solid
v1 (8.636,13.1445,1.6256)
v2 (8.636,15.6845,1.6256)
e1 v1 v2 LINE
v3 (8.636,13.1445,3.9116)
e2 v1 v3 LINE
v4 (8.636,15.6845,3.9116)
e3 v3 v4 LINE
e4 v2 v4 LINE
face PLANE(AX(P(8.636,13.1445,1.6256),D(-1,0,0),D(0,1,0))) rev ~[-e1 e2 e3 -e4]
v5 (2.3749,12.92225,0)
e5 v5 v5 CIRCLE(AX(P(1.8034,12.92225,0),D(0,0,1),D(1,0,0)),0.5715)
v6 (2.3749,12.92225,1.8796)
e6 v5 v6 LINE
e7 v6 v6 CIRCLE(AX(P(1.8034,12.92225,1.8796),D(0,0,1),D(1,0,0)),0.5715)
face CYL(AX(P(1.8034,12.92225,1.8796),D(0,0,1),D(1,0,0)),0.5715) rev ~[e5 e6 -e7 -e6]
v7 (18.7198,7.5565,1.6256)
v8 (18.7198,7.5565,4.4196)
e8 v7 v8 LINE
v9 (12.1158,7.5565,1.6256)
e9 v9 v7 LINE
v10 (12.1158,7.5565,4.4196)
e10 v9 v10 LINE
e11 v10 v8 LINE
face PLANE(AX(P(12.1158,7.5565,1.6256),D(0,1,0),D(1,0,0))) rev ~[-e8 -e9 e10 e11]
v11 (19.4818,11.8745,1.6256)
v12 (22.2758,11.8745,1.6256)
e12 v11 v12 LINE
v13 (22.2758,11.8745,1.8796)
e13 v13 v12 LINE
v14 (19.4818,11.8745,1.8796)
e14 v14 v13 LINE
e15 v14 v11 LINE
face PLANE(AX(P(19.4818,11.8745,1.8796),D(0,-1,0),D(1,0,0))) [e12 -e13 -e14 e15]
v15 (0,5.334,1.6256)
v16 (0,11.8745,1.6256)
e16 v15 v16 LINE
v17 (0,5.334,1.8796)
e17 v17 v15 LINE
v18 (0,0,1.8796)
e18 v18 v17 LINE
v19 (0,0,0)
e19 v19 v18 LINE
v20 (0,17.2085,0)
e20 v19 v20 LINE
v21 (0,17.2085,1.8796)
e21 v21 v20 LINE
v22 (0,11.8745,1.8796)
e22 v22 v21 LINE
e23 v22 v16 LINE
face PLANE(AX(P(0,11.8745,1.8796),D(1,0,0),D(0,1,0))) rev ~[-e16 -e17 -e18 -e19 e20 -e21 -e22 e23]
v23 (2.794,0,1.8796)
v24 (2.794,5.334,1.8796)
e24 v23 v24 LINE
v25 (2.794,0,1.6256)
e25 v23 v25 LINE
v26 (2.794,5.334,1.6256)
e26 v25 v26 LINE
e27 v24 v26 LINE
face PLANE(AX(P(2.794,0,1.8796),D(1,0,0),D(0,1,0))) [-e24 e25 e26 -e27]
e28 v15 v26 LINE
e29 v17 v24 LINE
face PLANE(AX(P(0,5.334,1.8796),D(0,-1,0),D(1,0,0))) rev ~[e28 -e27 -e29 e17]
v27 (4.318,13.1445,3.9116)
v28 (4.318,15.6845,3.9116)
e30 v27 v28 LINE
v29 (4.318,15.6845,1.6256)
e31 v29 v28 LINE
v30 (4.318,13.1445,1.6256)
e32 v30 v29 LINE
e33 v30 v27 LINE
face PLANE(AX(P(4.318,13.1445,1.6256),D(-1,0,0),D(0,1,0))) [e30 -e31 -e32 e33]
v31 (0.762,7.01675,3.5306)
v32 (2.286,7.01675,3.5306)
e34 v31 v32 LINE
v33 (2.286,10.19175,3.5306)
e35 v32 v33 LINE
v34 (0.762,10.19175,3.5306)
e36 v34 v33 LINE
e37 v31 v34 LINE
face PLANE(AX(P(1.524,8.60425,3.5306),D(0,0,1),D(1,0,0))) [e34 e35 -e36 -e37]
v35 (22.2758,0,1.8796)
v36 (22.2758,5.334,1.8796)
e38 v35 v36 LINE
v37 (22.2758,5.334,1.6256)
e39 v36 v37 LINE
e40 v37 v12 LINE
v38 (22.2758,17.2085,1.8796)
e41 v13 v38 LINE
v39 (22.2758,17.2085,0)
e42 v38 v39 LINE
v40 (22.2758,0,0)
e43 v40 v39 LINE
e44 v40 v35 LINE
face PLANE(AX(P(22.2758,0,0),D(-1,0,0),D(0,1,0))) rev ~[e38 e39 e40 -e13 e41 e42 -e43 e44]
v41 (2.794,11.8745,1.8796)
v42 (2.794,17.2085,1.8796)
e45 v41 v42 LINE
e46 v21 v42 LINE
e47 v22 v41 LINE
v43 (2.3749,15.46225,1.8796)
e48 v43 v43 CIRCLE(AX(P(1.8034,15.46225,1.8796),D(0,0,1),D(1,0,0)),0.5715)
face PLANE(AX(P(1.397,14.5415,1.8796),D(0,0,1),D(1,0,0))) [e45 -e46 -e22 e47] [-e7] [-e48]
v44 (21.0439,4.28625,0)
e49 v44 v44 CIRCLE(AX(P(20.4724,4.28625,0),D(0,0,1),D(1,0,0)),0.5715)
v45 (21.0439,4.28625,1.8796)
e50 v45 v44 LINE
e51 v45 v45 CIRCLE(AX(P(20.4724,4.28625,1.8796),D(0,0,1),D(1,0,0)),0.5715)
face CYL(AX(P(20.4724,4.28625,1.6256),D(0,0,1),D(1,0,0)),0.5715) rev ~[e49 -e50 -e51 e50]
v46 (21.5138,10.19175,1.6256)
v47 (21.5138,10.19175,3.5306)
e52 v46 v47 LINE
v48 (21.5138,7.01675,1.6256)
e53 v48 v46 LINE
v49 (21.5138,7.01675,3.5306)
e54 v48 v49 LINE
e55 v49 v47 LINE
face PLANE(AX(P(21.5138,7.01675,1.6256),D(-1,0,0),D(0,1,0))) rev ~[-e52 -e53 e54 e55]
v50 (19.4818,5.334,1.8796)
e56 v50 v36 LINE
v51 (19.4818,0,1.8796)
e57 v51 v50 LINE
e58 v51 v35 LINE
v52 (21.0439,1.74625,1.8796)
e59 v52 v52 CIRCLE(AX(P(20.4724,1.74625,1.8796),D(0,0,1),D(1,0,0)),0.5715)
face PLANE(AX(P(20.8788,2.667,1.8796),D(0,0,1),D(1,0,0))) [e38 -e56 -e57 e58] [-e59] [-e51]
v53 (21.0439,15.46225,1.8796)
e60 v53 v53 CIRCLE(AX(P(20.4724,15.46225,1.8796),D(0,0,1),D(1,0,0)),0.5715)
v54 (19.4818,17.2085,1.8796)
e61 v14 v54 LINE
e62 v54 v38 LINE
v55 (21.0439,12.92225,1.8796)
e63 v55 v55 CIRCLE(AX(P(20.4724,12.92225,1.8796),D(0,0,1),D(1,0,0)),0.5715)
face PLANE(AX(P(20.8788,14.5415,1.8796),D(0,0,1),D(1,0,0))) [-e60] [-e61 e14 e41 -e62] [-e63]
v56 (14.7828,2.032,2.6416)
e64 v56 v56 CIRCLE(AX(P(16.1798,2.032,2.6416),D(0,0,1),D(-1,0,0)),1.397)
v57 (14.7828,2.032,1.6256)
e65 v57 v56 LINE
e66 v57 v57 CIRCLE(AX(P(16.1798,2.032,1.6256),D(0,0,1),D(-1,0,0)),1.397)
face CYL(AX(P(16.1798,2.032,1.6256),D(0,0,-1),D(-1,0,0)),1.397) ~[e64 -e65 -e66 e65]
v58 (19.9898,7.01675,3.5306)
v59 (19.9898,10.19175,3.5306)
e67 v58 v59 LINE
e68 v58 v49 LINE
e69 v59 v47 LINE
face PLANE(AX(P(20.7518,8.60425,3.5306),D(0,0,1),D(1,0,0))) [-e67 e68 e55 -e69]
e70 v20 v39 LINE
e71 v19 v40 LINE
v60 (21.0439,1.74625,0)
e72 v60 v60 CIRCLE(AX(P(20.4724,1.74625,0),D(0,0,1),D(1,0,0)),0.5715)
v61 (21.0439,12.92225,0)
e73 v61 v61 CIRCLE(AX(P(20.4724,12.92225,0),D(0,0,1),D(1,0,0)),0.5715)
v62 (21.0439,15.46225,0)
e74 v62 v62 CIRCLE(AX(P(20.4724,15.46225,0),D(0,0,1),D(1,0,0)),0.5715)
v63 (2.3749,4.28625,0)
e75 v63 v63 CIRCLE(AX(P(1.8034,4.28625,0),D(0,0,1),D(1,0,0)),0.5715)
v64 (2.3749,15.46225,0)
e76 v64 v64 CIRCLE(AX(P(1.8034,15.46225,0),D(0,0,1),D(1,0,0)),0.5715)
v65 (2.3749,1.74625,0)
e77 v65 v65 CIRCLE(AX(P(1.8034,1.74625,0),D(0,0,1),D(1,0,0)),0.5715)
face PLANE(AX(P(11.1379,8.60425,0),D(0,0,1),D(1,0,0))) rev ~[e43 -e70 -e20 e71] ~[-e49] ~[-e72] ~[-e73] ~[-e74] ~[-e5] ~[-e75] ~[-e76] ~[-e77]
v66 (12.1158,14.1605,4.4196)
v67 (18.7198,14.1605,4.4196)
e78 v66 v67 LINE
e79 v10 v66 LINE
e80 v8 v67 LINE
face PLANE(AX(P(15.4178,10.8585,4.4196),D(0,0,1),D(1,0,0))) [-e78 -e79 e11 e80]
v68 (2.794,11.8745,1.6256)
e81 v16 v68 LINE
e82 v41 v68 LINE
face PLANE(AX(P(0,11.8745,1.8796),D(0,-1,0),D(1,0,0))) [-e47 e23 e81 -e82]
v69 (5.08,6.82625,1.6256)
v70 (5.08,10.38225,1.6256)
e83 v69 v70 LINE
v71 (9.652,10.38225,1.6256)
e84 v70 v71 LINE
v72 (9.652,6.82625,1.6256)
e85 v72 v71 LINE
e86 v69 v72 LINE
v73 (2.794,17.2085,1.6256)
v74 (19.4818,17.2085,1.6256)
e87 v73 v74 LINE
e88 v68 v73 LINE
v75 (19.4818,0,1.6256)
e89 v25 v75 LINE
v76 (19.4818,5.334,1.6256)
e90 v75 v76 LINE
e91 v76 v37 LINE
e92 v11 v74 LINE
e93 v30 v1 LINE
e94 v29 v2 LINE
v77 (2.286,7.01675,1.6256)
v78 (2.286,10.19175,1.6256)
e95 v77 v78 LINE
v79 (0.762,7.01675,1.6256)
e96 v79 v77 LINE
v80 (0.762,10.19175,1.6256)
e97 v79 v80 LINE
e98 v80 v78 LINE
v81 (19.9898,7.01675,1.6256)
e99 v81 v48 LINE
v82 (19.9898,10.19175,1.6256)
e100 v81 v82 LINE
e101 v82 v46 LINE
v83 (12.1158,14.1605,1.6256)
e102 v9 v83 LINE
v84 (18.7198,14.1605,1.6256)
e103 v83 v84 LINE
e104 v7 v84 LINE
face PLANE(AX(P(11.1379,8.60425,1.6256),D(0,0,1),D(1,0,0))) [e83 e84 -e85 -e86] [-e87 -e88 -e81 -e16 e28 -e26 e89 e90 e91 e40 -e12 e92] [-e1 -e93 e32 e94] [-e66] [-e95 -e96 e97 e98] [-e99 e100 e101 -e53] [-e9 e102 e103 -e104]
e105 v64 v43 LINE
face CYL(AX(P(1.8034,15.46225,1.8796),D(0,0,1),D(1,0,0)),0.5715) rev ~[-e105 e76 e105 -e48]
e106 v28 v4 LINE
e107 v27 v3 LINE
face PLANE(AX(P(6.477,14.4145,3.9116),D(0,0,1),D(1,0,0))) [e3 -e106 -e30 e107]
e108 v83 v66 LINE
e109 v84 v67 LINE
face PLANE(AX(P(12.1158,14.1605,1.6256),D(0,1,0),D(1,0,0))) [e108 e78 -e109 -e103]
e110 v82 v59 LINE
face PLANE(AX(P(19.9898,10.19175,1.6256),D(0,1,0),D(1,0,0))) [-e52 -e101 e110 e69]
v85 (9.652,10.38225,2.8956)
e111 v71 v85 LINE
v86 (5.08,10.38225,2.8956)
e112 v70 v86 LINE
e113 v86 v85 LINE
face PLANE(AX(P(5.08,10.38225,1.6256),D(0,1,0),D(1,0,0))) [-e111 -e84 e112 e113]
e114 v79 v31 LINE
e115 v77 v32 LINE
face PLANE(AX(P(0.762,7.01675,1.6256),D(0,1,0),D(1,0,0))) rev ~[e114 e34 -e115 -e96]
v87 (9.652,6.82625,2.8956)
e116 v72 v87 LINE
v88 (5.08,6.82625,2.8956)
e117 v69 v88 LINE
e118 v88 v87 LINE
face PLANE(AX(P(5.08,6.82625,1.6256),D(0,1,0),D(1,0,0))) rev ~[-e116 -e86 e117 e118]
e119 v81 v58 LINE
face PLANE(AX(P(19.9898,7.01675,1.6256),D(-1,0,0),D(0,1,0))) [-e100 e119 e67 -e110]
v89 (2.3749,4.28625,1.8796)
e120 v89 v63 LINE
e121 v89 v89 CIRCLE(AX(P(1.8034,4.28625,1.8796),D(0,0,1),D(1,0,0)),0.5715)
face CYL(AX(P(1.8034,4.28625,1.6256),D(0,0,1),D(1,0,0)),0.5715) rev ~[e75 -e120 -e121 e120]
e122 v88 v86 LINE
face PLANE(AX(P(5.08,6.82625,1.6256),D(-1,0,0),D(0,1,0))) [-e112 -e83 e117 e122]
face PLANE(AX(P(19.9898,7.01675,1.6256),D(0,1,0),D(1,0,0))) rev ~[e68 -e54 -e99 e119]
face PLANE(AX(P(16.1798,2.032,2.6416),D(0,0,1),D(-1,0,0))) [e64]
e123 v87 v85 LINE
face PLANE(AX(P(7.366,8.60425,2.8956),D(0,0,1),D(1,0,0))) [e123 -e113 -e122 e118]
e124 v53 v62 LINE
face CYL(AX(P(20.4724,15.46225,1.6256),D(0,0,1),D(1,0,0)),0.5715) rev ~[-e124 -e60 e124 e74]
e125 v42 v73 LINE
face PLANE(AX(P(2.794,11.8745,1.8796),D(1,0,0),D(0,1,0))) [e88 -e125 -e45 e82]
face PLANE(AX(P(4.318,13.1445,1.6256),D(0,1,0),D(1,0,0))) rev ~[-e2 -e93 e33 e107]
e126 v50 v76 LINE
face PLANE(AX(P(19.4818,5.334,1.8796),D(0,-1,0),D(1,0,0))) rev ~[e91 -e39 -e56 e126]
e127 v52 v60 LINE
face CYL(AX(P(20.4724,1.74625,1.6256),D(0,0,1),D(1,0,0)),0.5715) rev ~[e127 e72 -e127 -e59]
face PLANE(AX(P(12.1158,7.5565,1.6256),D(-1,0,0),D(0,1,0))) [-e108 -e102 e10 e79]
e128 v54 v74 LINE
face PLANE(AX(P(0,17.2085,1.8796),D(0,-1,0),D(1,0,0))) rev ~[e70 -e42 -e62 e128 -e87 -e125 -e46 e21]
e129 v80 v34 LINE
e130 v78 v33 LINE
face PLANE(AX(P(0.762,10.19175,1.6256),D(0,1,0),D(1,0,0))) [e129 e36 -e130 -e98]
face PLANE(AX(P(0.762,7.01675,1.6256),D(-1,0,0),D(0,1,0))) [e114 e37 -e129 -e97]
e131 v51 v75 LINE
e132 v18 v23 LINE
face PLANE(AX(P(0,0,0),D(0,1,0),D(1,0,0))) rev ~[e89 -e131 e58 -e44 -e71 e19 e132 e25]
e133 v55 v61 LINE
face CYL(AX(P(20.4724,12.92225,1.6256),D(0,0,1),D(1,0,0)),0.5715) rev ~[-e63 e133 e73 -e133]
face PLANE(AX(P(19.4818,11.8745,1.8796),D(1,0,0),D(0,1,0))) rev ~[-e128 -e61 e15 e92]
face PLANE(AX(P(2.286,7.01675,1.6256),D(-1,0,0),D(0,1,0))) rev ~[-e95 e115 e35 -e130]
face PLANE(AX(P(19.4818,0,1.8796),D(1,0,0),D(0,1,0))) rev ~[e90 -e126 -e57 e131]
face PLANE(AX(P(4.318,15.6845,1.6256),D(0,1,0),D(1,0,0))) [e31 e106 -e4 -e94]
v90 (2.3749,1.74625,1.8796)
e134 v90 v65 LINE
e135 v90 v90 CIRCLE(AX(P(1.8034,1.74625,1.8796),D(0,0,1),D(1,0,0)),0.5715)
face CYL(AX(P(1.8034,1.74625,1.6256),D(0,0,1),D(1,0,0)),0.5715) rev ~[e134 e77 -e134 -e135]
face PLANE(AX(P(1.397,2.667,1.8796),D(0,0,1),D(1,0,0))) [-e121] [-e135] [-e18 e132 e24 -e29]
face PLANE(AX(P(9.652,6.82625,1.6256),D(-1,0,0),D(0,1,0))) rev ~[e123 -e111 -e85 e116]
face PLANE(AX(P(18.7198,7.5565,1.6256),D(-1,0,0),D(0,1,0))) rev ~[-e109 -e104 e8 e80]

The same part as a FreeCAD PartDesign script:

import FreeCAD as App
import Part
import Sketcher
from FreeCAD import Vector
Q = App.Units.Quantity


def add_polygon(sketch, points):
    """Adds a closed chain of lines whose ends are joined by coincident constraints."""
    first, n = sketch.GeometryCount, len(points)
    for a, b in zip(points, points[1:] + points[:1]):
        sketch.addGeometry(Part.LineSegment(App.Vector(*a, 0), App.Vector(*b, 0)), False)
    for i in range(n):
        sketch.addConstraint(Sketcher.Constraint("Coincident", first + i, 2, first + (i + 1) % n, 1))

doc = App.newDocument("Part")
body = doc.addObject("PartDesign::Body", "Body")

sketch1 = body.newObject("Sketcher::SketchObject", "Sketch")
sketch1.AttachmentSupport = (doc.getObject("XY_Plane"), [""])
sketch1.MapMode = "FlatFace"
add_polygon(sketch1, [(0, 17), (0, 0), (22, 0), (22, 17)])
sketch1.addConstraint([
    Sketcher.Constraint("Vertical", 0),
    Sketcher.Constraint("Horizontal", 1),
    Sketcher.Constraint("Vertical", 2),
    Sketcher.Constraint("Horizontal", 3),
    Sketcher.Constraint("Coincident", 0, 2, -1, 1),
    Sketcher.Constraint("DistanceX", 1, 1, 1, 2, Q("0.877 in")),
    Sketcher.Constraint("DistanceY", 0, 2, 0, 1, Q("0.6775 in")),
])
pad1 = body.newObject("PartDesign::Pad", "Pad")
pad1.Profile = sketch1
pad1.Length = Q("0.064 in")

sketch2 = body.newObject("Sketcher::SketchObject", "Sketch001")
sketch2.AttachmentSupport = (doc.getObject("XY_Plane"), [""])
sketch2.MapMode = "FlatFace"
sketch2.AttachmentOffset = App.Placement(Vector(0, 0, 0.064 * 25.4), App.Rotation())
sketch2.addGeometry([
    Part.Circle(Vector(1.8, 15.5, 0), Vector(0, 0, 1), 0.6),
    Part.Circle(Vector(1.8, 12.9, 0), Vector(0, 0, 1), 0.6),
    Part.Circle(Vector(20.5, 15.5, 0), Vector(0, 0, 1), 0.6),
    Part.Circle(Vector(20.5, 12.9, 0), Vector(0, 0, 1), 0.6),
    Part.Circle(Vector(20.5, 4.3, 0), Vector(0, 0, 1), 0.6),
    Part.Circle(Vector(20.5, 1.7, 0), Vector(0, 0, 1), 0.6),
    Part.Circle(Vector(1.8, 4.3, 0), Vector(0, 0, 1), 0.6),
    Part.Circle(Vector(1.8, 1.7, 0), Vector(0, 0, 1), 0.6),
], False)
sketch2.addConstraint([
    Sketcher.Constraint("Equal", 0, 1),
    Sketcher.Constraint("Equal", 1, 2),
    Sketcher.Constraint("Equal", 2, 3),
    Sketcher.Constraint("Equal", 3, 4),
    Sketcher.Constraint("Equal", 4, 5),
    Sketcher.Constraint("Equal", 5, 6),
    Sketcher.Constraint("Equal", 6, 7),
    Sketcher.Constraint("Horizontal", 0, 3, 2, 3),
    Sketcher.Constraint("Horizontal", 1, 3, 3, 3),
    Sketcher.Constraint("Horizontal", 4, 3, 6, 3),
    Sketcher.Constraint("Horizontal", 5, 3, 7, 3),
    Sketcher.Constraint("Vertical", 0, 3, 1, 3),
    Sketcher.Constraint("Vertical", 2, 3, 3, 3),
    Sketcher.Constraint("Vertical", 3, 3, 4, 3),
    Sketcher.Constraint("Vertical", 4, 3, 5, 3),
    Sketcher.Constraint("Vertical", 1, 3, 6, 3),
    Sketcher.Constraint("Vertical", 6, 3, 7, 3),
    Sketcher.Constraint("Diameter", 0, Q("0.045 in")),
    Sketcher.Constraint("DistanceY", 1, 3, 0, 3, Q("0.1 in")),
    Sketcher.Constraint("DistanceY", 5, 3, 4, 3, Q("0.1 in")),
    Sketcher.Constraint("DistanceY", 4, 3, 3, 3, Q("0.34 in")),
    Sketcher.Constraint("DistanceX", -1, 1, 0, 3, Q("0.071 in")),
    Sketcher.Constraint("DistanceX", -1, 1, 2, 3, Q("0.806 in")),
    Sketcher.Constraint("DistanceY", -1, 1, 0, 3, Q("15.46225 mm")),
])
pocket1 = body.newObject("PartDesign::Pocket", "Pocket")
pocket1.Profile = sketch2
pocket1.Type = "ThroughAll"

sketch3 = body.newObject("Sketcher::SketchObject", "Sketch002")
sketch3.AttachmentSupport = (doc.getObject("XY_Plane"), [""])
sketch3.MapMode = "FlatFace"
sketch3.AttachmentOffset = App.Placement(Vector(0, 0, 0.064 * 25.4), App.Rotation())
add_polygon(sketch3, [(0.8, 10.2), (0.8, 7), (2.3, 7), (2.3, 10.2)])
add_polygon(sketch3, [(20, 10.2), (20, 7), (21.5, 7), (21.5, 10.2)])
sketch3.addConstraint([
    Sketcher.Constraint("Vertical", 0),
    Sketcher.Constraint("Horizontal", 1),
    Sketcher.Constraint("Vertical", 2),
    Sketcher.Constraint("Horizontal", 3),
    Sketcher.Constraint("Vertical", 4),
    Sketcher.Constraint("Horizontal", 5),
    Sketcher.Constraint("Vertical", 6),
    Sketcher.Constraint("Horizontal", 7),
    Sketcher.Constraint("Horizontal", 1, 2, 4, 2),
    Sketcher.Constraint("Horizontal", 3, 2, 6, 2),
    Sketcher.Constraint("Equal", 3, 5),
    Sketcher.Constraint("DistanceX", 1, 1, 1, 2, Q("0.06 in")),
    Sketcher.Constraint("DistanceY", 0, 2, 0, 1, Q("0.125 in")),
    Sketcher.Constraint("DistanceX", -1, 1, 0, 2, Q("0.03 in")),
    Sketcher.Constraint("DistanceX", -1, 1, 4, 2, Q("0.787 in")),
    Sketcher.Constraint("DistanceY", -1, 1, 0, 2, Q("7.01675 mm")),
])
pad2 = body.newObject("PartDesign::Pad", "Pad001")
pad2.Profile = sketch3
pad2.Length = Q("0.075 in")

sketch4 = body.newObject("Sketcher::SketchObject", "Sketch003")
sketch4.AttachmentSupport = (doc.getObject("XY_Plane"), [""])
sketch4.MapMode = "FlatFace"
sketch4.AttachmentOffset = App.Placement(Vector(0, 0, 0.064 * 25.4), App.Rotation())
add_polygon(sketch4, [(4.3, 15.7), (4.3, 13.1), (8.6, 13.1), (8.6, 15.7)])
sketch4.addConstraint([
    Sketcher.Constraint("Vertical", 0),
    Sketcher.Constraint("Horizontal", 1),
    Sketcher.Constraint("Vertical", 2),
    Sketcher.Constraint("Horizontal", 3),
    Sketcher.Constraint("DistanceY", 0, 2, 0, 1, Q("0.1 in")),
    Sketcher.Constraint("DistanceX", 1, 1, 1, 2, Q("0.17 in")),
    Sketcher.Constraint("DistanceX", -1, 1, 0, 2, Q("0.17 in")),
    Sketcher.Constraint("DistanceY", -1, 1, 0, 2, Q("0.5175 in")),
])
pad3 = body.newObject("PartDesign::Pad", "Pad002")
pad3.Profile = sketch4
pad3.Length = Q("0.09 in")

sketch5 = body.newObject("Sketcher::SketchObject", "Sketch004")
sketch5.AttachmentSupport = (doc.getObject("XY_Plane"), [""])
sketch5.MapMode = "FlatFace"
sketch5.AttachmentOffset = App.Placement(Vector(0, 0, 0.064 * 25.4), App.Rotation())
add_polygon(sketch5, [(5.1, 10.4), (5.1, 6.8), (9.7, 6.8), (9.7, 10.4)])
sketch5.addConstraint([
    Sketcher.Constraint("Vertical", 0),
    Sketcher.Constraint("Horizontal", 1),
    Sketcher.Constraint("Vertical", 2),
    Sketcher.Constraint("Horizontal", 3),
    Sketcher.Constraint("DistanceX", 1, 1, 1, 2, Q("0.18 in")),
    Sketcher.Constraint("DistanceY", 0, 2, 0, 1, Q("0.14 in")),
    Sketcher.Constraint("DistanceX", -1, 1, 0, 2, Q("0.2 in")),
    Sketcher.Constraint("DistanceY", -1, 1, 0, 2, Q("6.82625 mm")),
])
pad4 = body.newObject("PartDesign::Pad", "Pad003")
pad4.Profile = sketch5
pad4.Length = Q("0.05 in")

sketch6 = body.newObject("Sketcher::SketchObject", "Sketch005")
sketch6.AttachmentSupport = (doc.getObject("XY_Plane"), [""])
sketch6.MapMode = "FlatFace"
sketch6.AttachmentOffset = App.Placement(Vector(0, 0, 0.064 * 25.4), App.Rotation())
add_polygon(sketch6, [(12, 14), (12, 8), (19, 8), (19, 14)])
sketch6.addConstraint([
    Sketcher.Constraint("Vertical", 0),
    Sketcher.Constraint("Horizontal", 1),
    Sketcher.Constraint("Vertical", 2),
    Sketcher.Constraint("Horizontal", 3),
    Sketcher.Constraint("Equal", 3, 0),
    Sketcher.Constraint("DistanceX", 1, 1, 1, 2, Q("0.26 in")),
    Sketcher.Constraint("DistanceX", -1, 1, 0, 2, Q("0.477 in")),
    Sketcher.Constraint("DistanceY", -1, 1, 0, 2, Q("0.2975 in")),
])
pad5 = body.newObject("PartDesign::Pad", "Pad004")
pad5.Profile = sketch6
pad5.Length = Q("0.11 in")

sketch7 = body.newObject("Sketcher::SketchObject", "Sketch006")
sketch7.AttachmentSupport = (doc.getObject("XY_Plane"), [""])
sketch7.MapMode = "FlatFace"
sketch7.AttachmentOffset = App.Placement(Vector(0, 0, 0.064 * 25.4), App.Rotation())
sketch7.addGeometry(Part.Circle(Vector(16.2, 2, 0), Vector(0, 0, 1), 1.4), False)
sketch7.addConstraint([
    Sketcher.Constraint("Diameter", 0, Q("0.11 in")),
    Sketcher.Constraint("DistanceY", -1, 1, 0, 3, Q("0.08 in")),
    Sketcher.Constraint("DistanceX", -1, 1, 0, 3, Q("0.637 in")),
])
pad6 = body.newObject("PartDesign::Pad", "Pad005")
pad6.Profile = sketch7
pad6.Length = Q("0.04 in")

sketch8 = body.newObject("Sketcher::SketchObject", "Sketch007")
sketch8.AttachmentSupport = (doc.getObject("XY_Plane"), [""])
sketch8.MapMode = "FlatFace"
sketch8.AttachmentOffset = App.Placement(Vector(0, 0, 0.074 * 25.4), App.Rotation())
add_polygon(sketch8, [(0, 17.2), (0, 11.9), (2.8, 11.9), (2.8, 17.2)])
sketch8.addGeometry(Part.Circle(Vector(1.8, 12.9, 0), Vector(0, 0, 1), 0.6), False)
sketch8.addGeometry(Part.Circle(Vector(1.8, 15.5, 0), Vector(0, 0, 1), 0.6), False)
add_polygon(sketch8, [(0, 5.3), (0, 0), (2.8, 0), (2.8, 5.3)])
sketch8.addGeometry(Part.Circle(Vector(1.8, 1.7, 0), Vector(0, 0, 1), 0.6), False)
sketch8.addGeometry(Part.Circle(Vector(1.8, 4.3, 0), Vector(0, 0, 1), 0.6), False)
add_polygon(sketch8, [(19.5, 5.3), (19.5, 0), (22.3, 0), (22.3, 5.3)])
sketch8.addGeometry(Part.Circle(Vector(20.5, 1.7, 0), Vector(0, 0, 1), 0.6), False)
sketch8.addGeometry(Part.Circle(Vector(20.5, 4.3, 0), Vector(0, 0, 1), 0.6), False)
add_polygon(sketch8, [(19.5, 17.2), (19.5, 11.9), (22.3, 11.9), (22.3, 17.2)])
sketch8.addGeometry(Part.Circle(Vector(20.5, 12.9, 0), Vector(0, 0, 1), 0.6), False)
sketch8.addGeometry(Part.Circle(Vector(20.5, 15.5, 0), Vector(0, 0, 1), 0.6), False)
sketch8.addConstraint([
    Sketcher.Constraint("Vertical", 0),
    Sketcher.Constraint("Horizontal", 1),
    Sketcher.Constraint("Vertical", 2),
    Sketcher.Constraint("Horizontal", 3),
    Sketcher.Constraint("Vertical", 6),
    Sketcher.Constraint("Horizontal", 7),
    Sketcher.Constraint("Vertical", 8),
    Sketcher.Constraint("Horizontal", 9),
    Sketcher.Constraint("Vertical", 12),
    Sketcher.Constraint("Horizontal", 13),
    Sketcher.Constraint("Vertical", 14),
    Sketcher.Constraint("Horizontal", 15),
    Sketcher.Constraint("Vertical", 18),
    Sketcher.Constraint("Horizontal", 19),
    Sketcher.Constraint("Vertical", 20),
    Sketcher.Constraint("Horizontal", 21),
    Sketcher.Constraint("Coincident", 6, 2, -1, 1),
    Sketcher.Constraint("Equal", 4, 5),
    Sketcher.Constraint("Equal", 5, 10),
    Sketcher.Constraint("Equal", 10, 11),
    Sketcher.Constraint("Equal", 11, 16),
    Sketcher.Constraint("Equal", 16, 17),
    Sketcher.Constraint("Equal", 17, 22),
    Sketcher.Constraint("Equal", 22, 23),
    Sketcher.Constraint("PointOnObject", 0, 2, -2),
    Sketcher.Constraint("PointOnObject", 12, 2, -1),
    Sketcher.Constraint("Horizontal", 10, 3, 16, 3),
    Sketcher.Constraint("Horizontal", 11, 3, 17, 3),
    Sketcher.Constraint("Horizontal", 4, 3, 22, 3),
    Sketcher.Constraint("Horizontal", 5, 3, 23, 3),
    Sketcher.Constraint("Horizontal", 9, 2, 14, 2),
    Sketcher.Constraint("Horizontal", 1, 2, 18, 2),
    Sketcher.Constraint("Horizontal", 3, 2, 20, 2),
    Sketcher.Constraint("Vertical", 4, 3, 5, 3),
    Sketcher.Constraint("Vertical", 5, 3, 10, 3),
    Sketcher.Constraint("Vertical", 10, 3, 11, 3),
    Sketcher.Constraint("Vertical", 16, 3, 17, 3),
    Sketcher.Constraint("Vertical", 17, 3, 22, 3),
    Sketcher.Constraint("Vertical", 22, 3, 23, 3),
    Sketcher.Constraint("Vertical", 2, 2, 7, 2),
    Sketcher.Constraint("Vertical", 15, 2, 18, 2),
    Sketcher.Constraint("Vertical", 14, 2, 19, 2),
    Sketcher.Constraint("Equal", 9, 13),
    Sketcher.Constraint("Equal", 2, 6),
    Sketcher.Constraint("Diameter", 4, Q("0.045 in")),
    Sketcher.Constraint("DistanceX", 1, 1, 1, 2, Q("0.11 in")),
    Sketcher.Constraint("DistanceY", 0, 2, 0, 1, Q("0.21 in")),
    Sketcher.Constraint("DistanceY", 4, 3, 5, 3, Q("0.1 in")),
    Sketcher.Constraint("DistanceY", 10, 3, 11, 3, Q("0.1 in")),
    Sketcher.Constraint("DistanceY", 10, 3, 4, 3, Q("0.44 in")),
    Sketcher.Constraint("DistanceX", -1, 1, 4, 3, Q("0.071 in")),
    Sketcher.Constraint("DistanceX", -1, 1, 16, 3, Q("0.806 in")),
    Sketcher.Constraint("DistanceX", -1, 1, 12, 2, Q("0.767 in")),
    Sketcher.Constraint("DistanceY", -1, 1, 0, 2, Q("0.4675 in")),
    Sketcher.Constraint("DistanceY", -1, 1, 4, 3, Q("12.92225 mm")),
])
pad7 = body.newObject("PartDesign::Pad", "Pad006")
pad7.Profile = sketch8
pad7.Length = Q("0.01 in")
pad7.Reversed = True

doc.recompute()
